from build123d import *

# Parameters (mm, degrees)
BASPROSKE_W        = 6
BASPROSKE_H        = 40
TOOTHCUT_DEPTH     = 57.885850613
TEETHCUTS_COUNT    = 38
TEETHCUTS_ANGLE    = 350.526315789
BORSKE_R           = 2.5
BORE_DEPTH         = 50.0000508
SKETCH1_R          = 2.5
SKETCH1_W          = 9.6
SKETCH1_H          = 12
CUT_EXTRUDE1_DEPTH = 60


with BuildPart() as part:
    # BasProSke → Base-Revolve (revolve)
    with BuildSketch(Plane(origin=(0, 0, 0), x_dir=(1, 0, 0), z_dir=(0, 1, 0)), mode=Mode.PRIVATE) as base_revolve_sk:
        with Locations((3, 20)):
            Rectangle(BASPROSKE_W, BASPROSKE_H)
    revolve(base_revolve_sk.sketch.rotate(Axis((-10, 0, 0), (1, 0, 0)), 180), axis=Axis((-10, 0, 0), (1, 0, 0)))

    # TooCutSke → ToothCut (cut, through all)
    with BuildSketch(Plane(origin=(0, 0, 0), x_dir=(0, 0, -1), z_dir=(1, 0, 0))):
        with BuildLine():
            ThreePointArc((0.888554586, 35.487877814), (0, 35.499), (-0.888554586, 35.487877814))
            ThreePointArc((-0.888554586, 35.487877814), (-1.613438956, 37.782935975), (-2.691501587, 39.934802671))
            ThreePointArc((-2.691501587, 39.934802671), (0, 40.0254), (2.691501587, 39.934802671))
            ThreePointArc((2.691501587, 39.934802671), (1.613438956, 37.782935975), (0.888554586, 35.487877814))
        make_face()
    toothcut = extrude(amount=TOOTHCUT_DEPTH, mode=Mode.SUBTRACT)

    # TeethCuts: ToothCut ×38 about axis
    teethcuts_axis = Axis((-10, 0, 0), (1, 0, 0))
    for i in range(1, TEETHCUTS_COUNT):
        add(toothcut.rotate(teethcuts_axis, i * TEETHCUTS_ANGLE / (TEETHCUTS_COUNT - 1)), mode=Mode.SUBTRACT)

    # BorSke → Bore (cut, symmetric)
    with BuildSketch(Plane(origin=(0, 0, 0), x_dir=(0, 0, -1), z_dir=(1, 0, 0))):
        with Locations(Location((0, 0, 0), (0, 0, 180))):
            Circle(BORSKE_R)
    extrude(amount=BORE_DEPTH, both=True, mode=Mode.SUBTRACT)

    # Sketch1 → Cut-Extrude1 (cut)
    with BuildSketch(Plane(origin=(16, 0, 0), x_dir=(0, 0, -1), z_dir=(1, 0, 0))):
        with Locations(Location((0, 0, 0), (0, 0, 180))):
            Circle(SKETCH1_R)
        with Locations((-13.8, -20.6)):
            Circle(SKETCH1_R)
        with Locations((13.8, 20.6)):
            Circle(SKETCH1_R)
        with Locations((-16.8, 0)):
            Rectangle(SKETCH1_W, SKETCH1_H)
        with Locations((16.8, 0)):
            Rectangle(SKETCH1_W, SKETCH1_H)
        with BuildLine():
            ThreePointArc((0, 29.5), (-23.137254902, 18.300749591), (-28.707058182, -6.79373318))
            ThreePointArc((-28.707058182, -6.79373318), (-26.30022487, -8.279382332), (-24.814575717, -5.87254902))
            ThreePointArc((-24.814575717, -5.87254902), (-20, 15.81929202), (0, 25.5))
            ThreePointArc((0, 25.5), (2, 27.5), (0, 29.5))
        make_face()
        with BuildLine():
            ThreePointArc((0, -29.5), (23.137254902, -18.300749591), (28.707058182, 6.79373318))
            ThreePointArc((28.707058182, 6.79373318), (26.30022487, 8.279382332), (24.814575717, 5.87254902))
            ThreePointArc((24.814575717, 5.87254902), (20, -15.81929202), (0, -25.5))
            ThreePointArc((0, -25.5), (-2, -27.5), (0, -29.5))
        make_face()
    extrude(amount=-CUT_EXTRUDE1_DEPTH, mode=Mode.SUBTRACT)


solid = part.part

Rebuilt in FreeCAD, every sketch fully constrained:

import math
import FreeCAD as App
import Part
import Sketcher

V = App.Vector

doc = App.newDocument("Part")
body = doc.addObject("PartDesign::Body", "Body")

sketch1 = body.newObject("Sketcher::SketchObject", "Sketch")
sketch1.AttachmentSupport = (doc.getObject("XZ_Plane"), [""])
sketch1.MapMode = "FlatFace"
sketch1.addGeometry(Part.LineSegment(V(0, -40, 0), V(0, 0, 0)), False)
sketch1.addGeometry(Part.LineSegment(V(0, 0, 0), V(6, 0, 0)), False)
sketch1.addGeometry(Part.LineSegment(V(6, 0, 0), V(6, -40, 0)), False)
sketch1.addGeometry(Part.LineSegment(V(6, -40, 0), V(0, -40, 0)), False)
sketch1.addConstraint(Sketcher.Constraint("Coincident", 0, 2, 1, 1))
sketch1.addConstraint(Sketcher.Constraint("Coincident", 1, 2, 2, 1))
sketch1.addConstraint(Sketcher.Constraint("Coincident", 2, 2, 3, 1))
sketch1.addConstraint(Sketcher.Constraint("Coincident", 3, 2, 0, 1))
sketch1.addConstraint(Sketcher.Constraint("Vertical", 0))
sketch1.addConstraint(Sketcher.Constraint("Horizontal", 1))
sketch1.addConstraint(Sketcher.Constraint("Vertical", 2))
sketch1.addConstraint(Sketcher.Constraint("Horizontal", 3))
sketch1.addConstraint(Sketcher.Constraint("Coincident", 0, 2, -1, 1))
sketch1.addConstraint(Sketcher.Constraint("DistanceX", 1, 1, 1, 2, 6.0))
sketch1.addConstraint(Sketcher.Constraint("DistanceY", 0, 1, 0, 2, 40.0))
revolution = body.newObject("PartDesign::Revolution", "Revolution")
revolution.Profile = sketch1
revolution.ReferenceAxis = (sketch1, ["H_Axis"])
revolution.Angle = 360

sketch2 = body.newObject("Sketcher::SketchObject", "Sketch001")
sketch2.AttachmentSupport = (doc.getObject("YZ_Plane"), [""])
sketch2.MapMode = "FlatFace"
sketch2.addGeometry(Part.ArcOfCircle(Part.Circle(V(0, 0, 0), V(0, 0, 1), 35.5), math.radians(-1.43), math.radians(1.43)), False)
sketch2.addGeometry(Part.ArcOfCircle(Part.Circle(V(32.1, -15.7, 0), V(0, 0, 1), 15.2), math.radians(58.85), math.radians(77.01)), False)
sketch2.addGeometry(Part.ArcOfCircle(Part.Circle(V(0, 0, 0), V(0, 0, 1), 40), math.radians(-3.86), math.radians(3.86)), False)
sketch2.addGeometry(Part.ArcOfCircle(Part.Circle(V(32.1, 15.7, 0), V(0, 0, 1), 15.2), math.radians(-77.01), math.radians(-58.85)), False)
sketch2.addConstraint(Sketcher.Constraint("Coincident", 0, 1, 1, 2))
sketch2.addConstraint(Sketcher.Constraint("Coincident", 1, 1, 2, 1))
sketch2.addConstraint(Sketcher.Constraint("Coincident", 2, 2, 3, 2))
sketch2.addConstraint(Sketcher.Constraint("Coincident", 3, 1, 0, 2))
sketch2.addConstraint(Sketcher.Constraint("Coincident", 0, 3, -1, 1))
sketch2.addConstraint(Sketcher.Constraint("Coincident", 2, 3, -1, 1))
sketch2.addConstraint(Sketcher.Constraint("Equal", 1, 3))
sketch2.addConstraint(Sketcher.Constraint("Symmetric", 1, 3, 3, 3, -1))
sketch2.addConstraint(Sketcher.Constraint("Radius", 1, 15.2))
sketch2.addConstraint(Sketcher.Constraint("Radius", 0, 35.499))
sketch2.addConstraint(Sketcher.Constraint("Radius", 2, 40.0254))
sketch2.addConstraint(Sketcher.Constraint("DistanceY", 1, 1, -1, 1, 2.691502))
sketch2.addConstraint(Sketcher.Constraint("DistanceX", -1, 1, 1, 3, 32.071838))
pocket1 = body.newObject("PartDesign::Pocket", "Pocket")
pocket1.Profile = sketch2
pocket1.Type = "ThroughAll"
pocket1.Reversed = True
doc.recompute()

polarpattern = body.newObject("PartDesign::PolarPattern", "PolarPattern")
polarpattern.Originals = [pocket1]
polarpattern.Axis = (doc.getObject("X_Axis"), [""])
polarpattern.Angle = 360
polarpattern.Occurrences = 38
body.Tip = polarpattern

sketch3 = body.newObject("Sketcher::SketchObject", "Sketch002")
sketch3.AttachmentSupport = (doc.getObject("YZ_Plane"), [""])
sketch3.MapMode = "FlatFace"
sketch3.addGeometry(Part.Circle(V(0, 0, 0), V(0, 0, 1), 2.5), False)
sketch3.addConstraint(Sketcher.Constraint("Coincident", 0, 3, -1, 1))
sketch3.addConstraint(Sketcher.Constraint("Diameter", 0, 5.0))
pocket2 = body.newObject("PartDesign::Pocket", "Pocket001")
pocket2.Profile = sketch3
pocket2.Length = 100.000102
pocket2.Midplane = True

sketch4 = body.newObject("Sketcher::SketchObject", "Sketch003")
sketch4.AttachmentSupport = (doc.getObject("YZ_Plane"), [""])
sketch4.MapMode = "FlatFace"
sketch4.AttachmentOffset = App.Placement(V(0, 0, 16), App.Rotation())
sketch4.addGeometry(Part.Circle(V(0, 0, 0), V(0, 0, 1), 2.5), False)
sketch4.addGeometry(Part.Circle(V(-20.6, 13.8, 0), V(0, 0, 1), 2.5), False)
sketch4.addGeometry(Part.Circle(V(20.6, -13.8, 0), V(0, 0, 1), 2.5), False)
sketch4.addGeometry(Part.LineSegment(V(6, 21.6, 0), V(-6, 21.6, 0)), False)
sketch4.addGeometry(Part.LineSegment(V(-6, 21.6, 0), V(-6, 12, 0)), False)
sketch4.addGeometry(Part.LineSegment(V(-6, 12, 0), V(6, 12, 0)), False)
sketch4.addGeometry(Part.LineSegment(V(6, 12, 0), V(6, 21.6, 0)), False)
sketch4.addGeometry(Part.LineSegment(V(6, -12, 0), V(-6, -12, 0)), False)
sketch4.addGeometry(Part.LineSegment(V(-6, -12, 0), V(-6, -21.6, 0)), False)
sketch4.addGeometry(Part.LineSegment(V(-6, -21.6, 0), V(6, -21.6, 0)), False)
sketch4.addGeometry(Part.LineSegment(V(6, -21.6, 0), V(6, -12, 0)), False)
sketch4.addGeometry(Part.ArcOfCircle(Part.Circle(V(0, 0, 0), V(0, 0, 1), 29.5), math.radians(0), math.radians(103)), False)
sketch4.addGeometry(Part.ArcOfCircle(Part.Circle(V(-6.3, 26.8, 0), V(0, 0, 1), 2), math.radians(103), math.radians(283)), False)
sketch4.addGeometry(Part.ArcOfCircle(Part.Circle(V(0, 0, 0), V(0, 0, 1), 25.5), math.radians(0), math.radians(103)), False)
sketch4.addGeometry(Part.ArcOfCircle(Part.Circle(V(27.5, 0, 0), V(0, 0, 1), 2), math.radians(180), math.radians(360)), False)
sketch4.addGeometry(Part.ArcOfCircle(Part.Circle(V(0, 0, 0), V(0, 0, 1), 29.5), math.radians(180), math.radians(283)), False)
sketch4.addGeometry(Part.ArcOfCircle(Part.Circle(V(6.3, -26.8, 0), V(0, 0, 1), 2), math.radians(-77), math.radians(103)), False)
sketch4.addGeometry(Part.ArcOfCircle(Part.Circle(V(0, 0, 0), V(0, 0, 1), 25.5), math.radians(180), math.radians(283)), False)
sketch4.addGeometry(Part.ArcOfCircle(Part.Circle(V(-27.5, 0, 0), V(0, 0, 1), 2), math.radians(0), math.radians(180)), False)
sketch4.addConstraint(Sketcher.Constraint("Coincident", 3, 2, 4, 1))
sketch4.addConstraint(Sketcher.Constraint("Coincident", 4, 2, 5, 1))
sketch4.addConstraint(Sketcher.Constraint("Coincident", 5, 2, 6, 1))
sketch4.addConstraint(Sketcher.Constraint("Coincident", 6, 2, 3, 1))
sketch4.addConstraint(Sketcher.Constraint("Coincident", 7, 2, 8, 1))
sketch4.addConstraint(Sketcher.Constraint("Coincident", 8, 2, 9, 1))
sketch4.addConstraint(Sketcher.Constraint("Coincident", 9, 2, 10, 1))
sketch4.addConstraint(Sketcher.Constraint("Coincident", 10, 2, 7, 1))
sketch4.addConstraint(Sketcher.Constraint("Tangent", 11, 2, 12, 1))
sketch4.addConstraint(Sketcher.Constraint("Tangent", 12, 2, 13, 2))
sketch4.addConstraint(Sketcher.Constraint("Tangent", 13, 1, 14, 1))
sketch4.addConstraint(Sketcher.Constraint("Tangent", 14, 2, 11, 1))
sketch4.addConstraint(Sketcher.Constraint("Tangent", 15, 2, 16, 1))
sketch4.addConstraint(Sketcher.Constraint("Tangent", 16, 2, 17, 2))
sketch4.addConstraint(Sketcher.Constraint("Tangent", 17, 1, 18, 1))
sketch4.addConstraint(Sketcher.Constraint("Tangent", 18, 2, 15, 1))
sketch4.addConstraint(Sketcher.Constraint("Horizontal", 3))
sketch4.addConstraint(Sketcher.Constraint("Vertical", 4))
sketch4.addConstraint(Sketcher.Constraint("Horizontal", 5))
sketch4.addConstraint(Sketcher.Constraint("Vertical", 6))
sketch4.addConstraint(Sketcher.Constraint("Horizontal", 7))
sketch4.addConstraint(Sketcher.Constraint("Vertical", 8))
sketch4.addConstraint(Sketcher.Constraint("Horizontal", 9))
sketch4.addConstraint(Sketcher.Constraint("Vertical", 10))
sketch4.addConstraint(Sketcher.Constraint("Coincident", 0, 3, -1, 1))
sketch4.addConstraint(Sketcher.Constraint("Coincident", 11, 3, -1, 1))
sketch4.addConstraint(Sketcher.Constraint("Coincident", 13, 3, -1, 1))
sketch4.addConstraint(Sketcher.Constraint("Coincident", 15, 3, -1, 1))
sketch4.addConstraint(Sketcher.Constraint("Coincident", 17, 3, -1, 1))
sketch4.addConstraint(Sketcher.Constraint("Equal", 0, 1))
sketch4.addConstraint(Sketcher.Constraint("Equal", 1, 2))
sketch4.addConstraint(Sketcher.Constraint("Equal", 11, 15))
sketch4.addConstraint(Sketcher.Constraint("Equal", 14, 16))
sketch4.addConstraint(Sketcher.Constraint("Symmetric", 1, 3, 2, 3, -1, 1))
sketch4.addConstraint(Sketcher.Constraint("Symmetric", 5, 2, 7, 2, -1, 1))
sketch4.addConstraint(Sketcher.Constraint("Symmetric", 3, 2, 9, 2, -1, 1))
sketch4.addConstraint(Sketcher.Constraint("PointOnObject", 14, 3, -1))
sketch4.addConstraint(Sketcher.Constraint("PointOnObject", 18, 3, -1))
sketch4.addConstraint(Sketcher.Constraint("Vertical", 4, 2, 7, 2))
sketch4.addConstraint(Sketcher.Constraint("Diameter", 0, 5.0))
sketch4.addConstraint(Sketcher.Constraint("Radius", 12, 2.0))
sketch4.addConstraint(Sketcher.Constraint("Radius", 11, 29.5))
sketch4.addConstraint(Sketcher.Constraint("DistanceX", 3, 2, 3, 1, 12.0))
sketch4.addConstraint(Sketcher.Constraint("DistanceY", 4, 2, 4, 1, 9.6))
sketch4.addConstraint(Sketcher.Constraint("DistanceY", -1, 1, 4, 2, 12.0))
sketch4.addConstraint(Sketcher.Constraint("DistanceX", 1, 3, -1, 1, 20.6))
sketch4.addConstraint(Sketcher.Constraint("DistanceY", -1, 1, 1, 3, 13.8))
sketch4.addConstraint(Sketcher.Constraint("DistanceX", 12, 3, -1, 1, 6.333141))
sketch4.addConstraint(Sketcher.Constraint("DistanceX", -1, 1, 16, 3, 6.333141))
pocket3 = body.newObject("PartDesign::Pocket", "Pocket002")
pocket3.Profile = sketch4
pocket3.Length = 60

doc.recompute()
